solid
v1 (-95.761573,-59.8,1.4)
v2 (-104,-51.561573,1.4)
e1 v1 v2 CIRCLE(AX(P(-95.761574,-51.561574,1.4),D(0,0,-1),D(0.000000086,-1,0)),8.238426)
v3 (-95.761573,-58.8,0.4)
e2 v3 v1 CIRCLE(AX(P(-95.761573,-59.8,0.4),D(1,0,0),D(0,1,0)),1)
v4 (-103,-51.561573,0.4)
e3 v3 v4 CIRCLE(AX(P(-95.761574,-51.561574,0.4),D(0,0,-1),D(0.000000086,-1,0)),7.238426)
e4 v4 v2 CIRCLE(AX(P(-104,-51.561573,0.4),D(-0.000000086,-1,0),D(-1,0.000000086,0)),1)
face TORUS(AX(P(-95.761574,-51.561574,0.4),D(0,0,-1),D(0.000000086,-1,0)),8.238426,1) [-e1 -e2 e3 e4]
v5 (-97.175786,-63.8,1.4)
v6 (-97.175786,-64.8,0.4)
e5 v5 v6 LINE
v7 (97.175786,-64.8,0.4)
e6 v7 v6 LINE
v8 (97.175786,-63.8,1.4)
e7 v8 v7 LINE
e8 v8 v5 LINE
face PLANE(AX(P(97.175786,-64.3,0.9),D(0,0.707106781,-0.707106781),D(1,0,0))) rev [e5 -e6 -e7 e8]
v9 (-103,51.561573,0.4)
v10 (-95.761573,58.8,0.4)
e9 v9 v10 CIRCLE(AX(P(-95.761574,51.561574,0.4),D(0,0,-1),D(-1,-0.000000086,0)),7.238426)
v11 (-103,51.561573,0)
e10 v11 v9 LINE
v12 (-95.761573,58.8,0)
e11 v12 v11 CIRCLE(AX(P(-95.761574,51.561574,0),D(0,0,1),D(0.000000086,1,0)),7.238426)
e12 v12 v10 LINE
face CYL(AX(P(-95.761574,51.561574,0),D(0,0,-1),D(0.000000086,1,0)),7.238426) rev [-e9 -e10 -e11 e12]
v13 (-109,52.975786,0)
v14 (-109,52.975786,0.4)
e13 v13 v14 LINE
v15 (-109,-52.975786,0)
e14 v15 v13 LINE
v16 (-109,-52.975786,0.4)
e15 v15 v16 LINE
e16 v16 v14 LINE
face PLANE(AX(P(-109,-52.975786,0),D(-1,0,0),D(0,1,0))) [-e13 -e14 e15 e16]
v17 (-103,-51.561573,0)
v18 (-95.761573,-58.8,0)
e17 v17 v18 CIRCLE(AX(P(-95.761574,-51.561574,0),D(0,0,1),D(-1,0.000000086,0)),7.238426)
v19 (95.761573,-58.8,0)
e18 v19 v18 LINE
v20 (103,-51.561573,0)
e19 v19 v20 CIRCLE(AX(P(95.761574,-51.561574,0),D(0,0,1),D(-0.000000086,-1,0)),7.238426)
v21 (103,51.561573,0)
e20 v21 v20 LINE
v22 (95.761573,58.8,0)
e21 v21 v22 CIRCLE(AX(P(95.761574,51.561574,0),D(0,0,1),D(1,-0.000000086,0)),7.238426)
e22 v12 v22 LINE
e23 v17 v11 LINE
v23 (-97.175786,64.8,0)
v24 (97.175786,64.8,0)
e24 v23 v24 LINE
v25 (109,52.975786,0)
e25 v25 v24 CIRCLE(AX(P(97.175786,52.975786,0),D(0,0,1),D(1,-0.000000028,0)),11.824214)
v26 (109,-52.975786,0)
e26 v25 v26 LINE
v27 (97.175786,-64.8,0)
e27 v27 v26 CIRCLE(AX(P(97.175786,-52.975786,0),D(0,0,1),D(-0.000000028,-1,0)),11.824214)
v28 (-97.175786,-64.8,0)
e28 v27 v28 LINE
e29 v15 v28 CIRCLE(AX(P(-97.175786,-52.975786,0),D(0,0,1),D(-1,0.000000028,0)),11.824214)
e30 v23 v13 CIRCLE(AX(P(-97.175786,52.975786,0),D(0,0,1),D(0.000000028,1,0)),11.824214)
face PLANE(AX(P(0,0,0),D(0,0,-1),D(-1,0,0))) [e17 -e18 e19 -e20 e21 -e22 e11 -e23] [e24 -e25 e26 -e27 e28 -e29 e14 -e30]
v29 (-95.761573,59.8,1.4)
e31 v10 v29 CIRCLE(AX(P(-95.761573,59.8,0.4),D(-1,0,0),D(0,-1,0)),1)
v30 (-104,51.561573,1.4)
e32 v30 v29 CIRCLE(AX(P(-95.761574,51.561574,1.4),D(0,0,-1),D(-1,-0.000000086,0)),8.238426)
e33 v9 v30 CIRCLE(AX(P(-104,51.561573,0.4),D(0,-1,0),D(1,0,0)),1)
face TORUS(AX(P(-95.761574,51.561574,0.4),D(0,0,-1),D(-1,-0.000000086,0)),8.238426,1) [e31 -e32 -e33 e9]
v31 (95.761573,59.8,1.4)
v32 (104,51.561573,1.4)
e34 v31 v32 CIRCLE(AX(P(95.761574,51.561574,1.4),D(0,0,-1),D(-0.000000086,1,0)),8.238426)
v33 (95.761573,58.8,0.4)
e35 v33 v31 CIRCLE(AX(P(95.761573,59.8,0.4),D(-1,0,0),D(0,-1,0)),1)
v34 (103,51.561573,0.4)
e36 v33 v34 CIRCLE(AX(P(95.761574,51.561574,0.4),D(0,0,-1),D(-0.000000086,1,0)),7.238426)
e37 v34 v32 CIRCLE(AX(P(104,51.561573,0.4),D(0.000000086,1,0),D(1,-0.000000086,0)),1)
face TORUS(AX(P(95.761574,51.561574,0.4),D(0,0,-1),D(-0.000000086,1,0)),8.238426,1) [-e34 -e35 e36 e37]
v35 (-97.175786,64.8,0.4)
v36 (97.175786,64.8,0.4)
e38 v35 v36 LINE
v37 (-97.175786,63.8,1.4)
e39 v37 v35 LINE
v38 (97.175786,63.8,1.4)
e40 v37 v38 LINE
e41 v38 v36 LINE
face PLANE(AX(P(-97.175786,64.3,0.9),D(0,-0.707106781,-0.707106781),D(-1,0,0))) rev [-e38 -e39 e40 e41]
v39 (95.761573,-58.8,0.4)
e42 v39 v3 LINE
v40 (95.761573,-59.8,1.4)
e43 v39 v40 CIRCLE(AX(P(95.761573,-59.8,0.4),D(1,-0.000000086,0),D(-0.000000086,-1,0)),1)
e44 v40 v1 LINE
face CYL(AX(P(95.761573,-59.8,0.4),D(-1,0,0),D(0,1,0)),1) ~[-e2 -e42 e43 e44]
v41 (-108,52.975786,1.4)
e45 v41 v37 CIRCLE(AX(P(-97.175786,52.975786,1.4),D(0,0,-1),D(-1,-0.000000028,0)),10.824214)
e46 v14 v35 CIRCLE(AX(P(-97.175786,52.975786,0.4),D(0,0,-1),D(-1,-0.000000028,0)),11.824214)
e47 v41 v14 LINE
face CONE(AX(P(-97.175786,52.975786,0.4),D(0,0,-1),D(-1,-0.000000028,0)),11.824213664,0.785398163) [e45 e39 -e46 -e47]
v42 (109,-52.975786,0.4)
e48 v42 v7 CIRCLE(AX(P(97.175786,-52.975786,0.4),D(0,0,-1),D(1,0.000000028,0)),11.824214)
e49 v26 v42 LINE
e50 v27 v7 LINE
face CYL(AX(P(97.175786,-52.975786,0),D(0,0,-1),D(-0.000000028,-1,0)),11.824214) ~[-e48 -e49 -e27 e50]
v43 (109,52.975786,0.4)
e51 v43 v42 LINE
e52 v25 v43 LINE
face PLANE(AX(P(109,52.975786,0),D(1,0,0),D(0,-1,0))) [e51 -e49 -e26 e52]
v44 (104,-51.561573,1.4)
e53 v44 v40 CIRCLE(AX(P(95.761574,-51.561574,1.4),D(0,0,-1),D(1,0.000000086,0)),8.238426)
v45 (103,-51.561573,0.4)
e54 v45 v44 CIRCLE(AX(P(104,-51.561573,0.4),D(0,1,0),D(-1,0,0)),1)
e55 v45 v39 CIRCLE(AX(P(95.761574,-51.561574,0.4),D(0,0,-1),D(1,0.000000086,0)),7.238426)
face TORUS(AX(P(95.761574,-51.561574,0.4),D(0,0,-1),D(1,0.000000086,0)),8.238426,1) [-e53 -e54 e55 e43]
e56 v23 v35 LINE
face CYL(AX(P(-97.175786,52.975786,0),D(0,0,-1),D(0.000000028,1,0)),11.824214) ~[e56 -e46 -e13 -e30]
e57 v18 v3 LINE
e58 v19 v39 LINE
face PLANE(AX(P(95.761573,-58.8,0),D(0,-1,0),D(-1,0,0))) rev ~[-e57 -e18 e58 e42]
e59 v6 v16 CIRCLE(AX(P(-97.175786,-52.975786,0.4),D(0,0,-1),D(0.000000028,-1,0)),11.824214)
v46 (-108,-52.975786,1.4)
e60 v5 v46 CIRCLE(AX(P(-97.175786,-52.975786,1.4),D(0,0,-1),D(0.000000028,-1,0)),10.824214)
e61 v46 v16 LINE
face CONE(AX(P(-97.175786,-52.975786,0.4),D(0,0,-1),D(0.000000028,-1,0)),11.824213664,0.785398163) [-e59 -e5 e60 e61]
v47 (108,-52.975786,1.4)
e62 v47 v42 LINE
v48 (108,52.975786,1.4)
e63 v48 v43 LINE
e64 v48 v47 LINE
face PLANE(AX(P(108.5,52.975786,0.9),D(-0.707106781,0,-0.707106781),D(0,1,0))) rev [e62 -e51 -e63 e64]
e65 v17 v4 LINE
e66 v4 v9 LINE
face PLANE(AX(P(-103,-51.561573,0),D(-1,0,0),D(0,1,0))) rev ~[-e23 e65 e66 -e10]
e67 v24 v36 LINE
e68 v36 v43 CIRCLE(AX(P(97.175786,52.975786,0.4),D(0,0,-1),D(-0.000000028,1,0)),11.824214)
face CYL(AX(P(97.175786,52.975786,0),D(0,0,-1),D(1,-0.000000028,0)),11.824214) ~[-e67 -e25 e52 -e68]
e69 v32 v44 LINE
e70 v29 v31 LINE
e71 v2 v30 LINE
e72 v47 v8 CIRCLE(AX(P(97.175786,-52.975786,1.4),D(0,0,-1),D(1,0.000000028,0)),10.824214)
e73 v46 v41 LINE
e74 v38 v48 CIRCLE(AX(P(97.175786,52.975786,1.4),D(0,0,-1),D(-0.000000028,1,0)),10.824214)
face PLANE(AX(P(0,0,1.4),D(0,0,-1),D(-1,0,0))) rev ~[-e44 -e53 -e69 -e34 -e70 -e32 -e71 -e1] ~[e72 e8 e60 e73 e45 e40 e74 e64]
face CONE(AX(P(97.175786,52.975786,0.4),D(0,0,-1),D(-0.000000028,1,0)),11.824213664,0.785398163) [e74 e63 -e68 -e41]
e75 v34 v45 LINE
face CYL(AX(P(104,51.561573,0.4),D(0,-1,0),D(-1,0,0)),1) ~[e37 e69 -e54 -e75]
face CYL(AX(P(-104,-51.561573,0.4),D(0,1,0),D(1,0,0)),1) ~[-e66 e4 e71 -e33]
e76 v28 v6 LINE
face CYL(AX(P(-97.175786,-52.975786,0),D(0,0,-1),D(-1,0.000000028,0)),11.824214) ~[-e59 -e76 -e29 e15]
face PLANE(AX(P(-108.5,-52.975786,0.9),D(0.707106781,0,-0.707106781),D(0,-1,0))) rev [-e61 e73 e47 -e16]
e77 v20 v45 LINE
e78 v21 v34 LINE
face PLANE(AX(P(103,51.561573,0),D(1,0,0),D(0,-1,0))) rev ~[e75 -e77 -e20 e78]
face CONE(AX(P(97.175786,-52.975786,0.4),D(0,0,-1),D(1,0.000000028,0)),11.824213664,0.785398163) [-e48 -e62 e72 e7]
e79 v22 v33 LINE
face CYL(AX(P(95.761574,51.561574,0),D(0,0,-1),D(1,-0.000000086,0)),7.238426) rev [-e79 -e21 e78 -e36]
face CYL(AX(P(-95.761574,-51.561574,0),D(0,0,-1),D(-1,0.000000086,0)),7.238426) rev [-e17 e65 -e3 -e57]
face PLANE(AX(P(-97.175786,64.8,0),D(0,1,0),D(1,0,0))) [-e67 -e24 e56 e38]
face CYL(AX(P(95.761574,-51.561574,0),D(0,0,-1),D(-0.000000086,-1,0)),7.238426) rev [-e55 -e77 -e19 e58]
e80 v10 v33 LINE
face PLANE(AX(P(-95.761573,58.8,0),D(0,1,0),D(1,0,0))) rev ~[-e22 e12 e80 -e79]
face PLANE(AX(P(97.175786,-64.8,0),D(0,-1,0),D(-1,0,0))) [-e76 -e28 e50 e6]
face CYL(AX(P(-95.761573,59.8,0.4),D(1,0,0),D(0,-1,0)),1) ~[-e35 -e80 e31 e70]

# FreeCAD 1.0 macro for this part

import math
import FreeCAD as App
import Part
import Sketcher
Q = App.Units.Quantity


def edges_at(feature, points):
    """Names of the edges that pass closest to the given points."""
    edges = feature.Shape.Edges
    near = lambda p: min(range(len(edges)), key=lambda i: edges[i].distToShape(Part.Vertex(*p))[0])
    return sorted({f"Edge{near(p) + 1}" for p in points})

doc = App.newDocument("Part")
body = doc.addObject("PartDesign::Body", "Body")

sketch1 = body.newObject("Sketcher::SketchObject", "Sketch")
sketch1.AttachmentSupport = (doc.getObject("XY_Plane"), [""])
sketch1.MapMode = "FlatFace"
sketch1.addGeometry(Part.LineSegment(App.Vector(97, 65, 0), App.Vector(-97, 65, 0)), False)
sketch1.addGeometry(Part.ArcOfCircle(Part.Circle(App.Vector(-97, 53, 0), App.Vector(0, 0, 1), 12), math.radians(90), math.radians(180)), False)
sketch1.addGeometry(Part.LineSegment(App.Vector(-109, 53, 0), App.Vector(-109, -53, 0)), False)
sketch1.addGeometry(Part.ArcOfCircle(Part.Circle(App.Vector(-97, -53, 0), App.Vector(0, 0, 1), 12), math.radians(180), math.radians(270)), False)
sketch1.addGeometry(Part.LineSegment(App.Vector(-97, -65, 0), App.Vector(97, -65, 0)), False)
sketch1.addGeometry(Part.ArcOfCircle(Part.Circle(App.Vector(97, -53, 0), App.Vector(0, 0, 1), 12), math.radians(-90), math.radians(0)), False)
sketch1.addGeometry(Part.LineSegment(App.Vector(109, -53, 0), App.Vector(109, 53, 0)), False)
sketch1.addGeometry(Part.ArcOfCircle(Part.Circle(App.Vector(97, 53, 0), App.Vector(0, 0, 1), 12), math.radians(0), math.radians(90)), False)
sketch1.addGeometry(Part.LineSegment(App.Vector(-96, 59, 0), App.Vector(96, 59, 0)), False)
sketch1.addGeometry(Part.ArcOfCircle(Part.Circle(App.Vector(96, 52, 0), App.Vector(0, 0, 1), 7), math.radians(0), math.radians(90)), False)
sketch1.addGeometry(Part.LineSegment(App.Vector(103, 52, 0), App.Vector(103, -52, 0)), False)
sketch1.addGeometry(Part.ArcOfCircle(Part.Circle(App.Vector(96, -52, 0), App.Vector(0, 0, 1), 7), math.radians(-90), math.radians(0)), False)
sketch1.addGeometry(Part.LineSegment(App.Vector(96, -59, 0), App.Vector(-96, -59, 0)), False)
sketch1.addGeometry(Part.ArcOfCircle(Part.Circle(App.Vector(-96, -52, 0), App.Vector(0, 0, 1), 7), math.radians(180), math.radians(270)), False)
sketch1.addGeometry(Part.LineSegment(App.Vector(-103, -52, 0), App.Vector(-103, 52, 0)), False)
sketch1.addGeometry(Part.ArcOfCircle(Part.Circle(App.Vector(-96, 52, 0), App.Vector(0, 0, 1), 7), math.radians(90), math.radians(180)), False)
sketch1.addConstraint(Sketcher.Constraint("Tangent", 0, 2, 1, 1))
sketch1.addConstraint(Sketcher.Constraint("Tangent", 1, 2, 2, 1))
sketch1.addConstraint(Sketcher.Constraint("Tangent", 2, 2, 3, 1))
sketch1.addConstraint(Sketcher.Constraint("Tangent", 3, 2, 4, 1))
sketch1.addConstraint(Sketcher.Constraint("Tangent", 4, 2, 5, 1))
sketch1.addConstraint(Sketcher.Constraint("Tangent", 5, 2, 6, 1))
sketch1.addConstraint(Sketcher.Constraint("Tangent", 6, 2, 7, 1))
sketch1.addConstraint(Sketcher.Constraint("Tangent", 7, 2, 0, 1))
sketch1.addConstraint(Sketcher.Constraint("Tangent", 8, 2, 9, 2))
sketch1.addConstraint(Sketcher.Constraint("Tangent", 9, 1, 10, 1))
sketch1.addConstraint(Sketcher.Constraint("Tangent", 10, 2, 11, 2))
sketch1.addConstraint(Sketcher.Constraint("Tangent", 11, 1, 12, 1))
sketch1.addConstraint(Sketcher.Constraint("Tangent", 12, 2, 13, 2))
sketch1.addConstraint(Sketcher.Constraint("Tangent", 13, 1, 14, 1))
sketch1.addConstraint(Sketcher.Constraint("Tangent", 14, 2, 15, 2))
sketch1.addConstraint(Sketcher.Constraint("Tangent", 15, 1, 8, 1))
sketch1.addConstraint(Sketcher.Constraint("Horizontal", 0))
sketch1.addConstraint(Sketcher.Constraint("Vertical", 2))
sketch1.addConstraint(Sketcher.Constraint("Horizontal", 4))
sketch1.addConstraint(Sketcher.Constraint("Vertical", 6))
sketch1.addConstraint(Sketcher.Constraint("Horizontal", 8))
sketch1.addConstraint(Sketcher.Constraint("Vertical", 10))
sketch1.addConstraint(Sketcher.Constraint("Horizontal", 12))
sketch1.addConstraint(Sketcher.Constraint("Vertical", 14))
sketch1.addConstraint(Sketcher.Constraint("Equal", 1, 3))
sketch1.addConstraint(Sketcher.Constraint("Equal", 3, 5))
sketch1.addConstraint(Sketcher.Constraint("Equal", 5, 7))
sketch1.addConstraint(Sketcher.Constraint("Equal", 9, 11))
sketch1.addConstraint(Sketcher.Constraint("Equal", 11, 13))
sketch1.addConstraint(Sketcher.Constraint("Equal", 13, 15))
sketch1.addConstraint(Sketcher.Constraint("Symmetric", 1, 3, 5, 3, -1, 1))
sketch1.addConstraint(Sketcher.Constraint("Symmetric", 9, 3, 13, 3, -1, 1))
sketch1.addConstraint(Sketcher.Constraint("DistanceX", 1, 2, -1, 1, Q("109 mm")))
sketch1.addConstraint(Sketcher.Constraint("DistanceX", -1, 1, 9, 1, Q("103 mm")))
sketch1.addConstraint(Sketcher.Constraint("DistanceY", 8, 2, 7, 2, Q("6 mm")))
sketch1.addConstraint(Sketcher.Constraint("DistanceY", -1, 1, 0, 2, Q("64.8 mm")))
sketch1.addConstraint(Sketcher.Constraint("Radius", 1, Q("11.824214 mm")))
sketch1.addConstraint(Sketcher.Constraint("Radius", 9, Q("7.238426 mm")))
pad1 = body.newObject("PartDesign::Pad", "Pad")
pad1.Profile = sketch1
pad1.Length = 1.4
doc.recompute()

fillet = body.newObject("PartDesign::Fillet", "Fillet")
fillet.Base = (pad1, edges_at(pad1, [
    (0, 58.8, 1.4),
    (-100.88, 56.68, 1.4),
    (-103, 0, 1.4),
    (-100.88, -56.68, 1.4),
    (0, -58.8, 1.4),
    (100.88, -56.68, 1.4),
    (103, 0, 1.4),
    (100.88, 56.68, 1.4),
]))
fillet.Radius = 1
doc.recompute()

chamfer = body.newObject("PartDesign::Chamfer", "Chamfer")
chamfer.Base = (fillet, edges_at(fillet, [
    (0, 64.8, 1.4),
    (105.537, 61.337, 1.4),
    (109, 0, 1.4),
    (105.537, -61.337, 1.4),
    (0, -64.8, 1.4),
    (-105.537, -61.337, 1.4),
    (-109, 0, 1.4),
    (-105.537, 61.337, 1.4),
]))
chamfer.Size = 1

doc.recompute()
